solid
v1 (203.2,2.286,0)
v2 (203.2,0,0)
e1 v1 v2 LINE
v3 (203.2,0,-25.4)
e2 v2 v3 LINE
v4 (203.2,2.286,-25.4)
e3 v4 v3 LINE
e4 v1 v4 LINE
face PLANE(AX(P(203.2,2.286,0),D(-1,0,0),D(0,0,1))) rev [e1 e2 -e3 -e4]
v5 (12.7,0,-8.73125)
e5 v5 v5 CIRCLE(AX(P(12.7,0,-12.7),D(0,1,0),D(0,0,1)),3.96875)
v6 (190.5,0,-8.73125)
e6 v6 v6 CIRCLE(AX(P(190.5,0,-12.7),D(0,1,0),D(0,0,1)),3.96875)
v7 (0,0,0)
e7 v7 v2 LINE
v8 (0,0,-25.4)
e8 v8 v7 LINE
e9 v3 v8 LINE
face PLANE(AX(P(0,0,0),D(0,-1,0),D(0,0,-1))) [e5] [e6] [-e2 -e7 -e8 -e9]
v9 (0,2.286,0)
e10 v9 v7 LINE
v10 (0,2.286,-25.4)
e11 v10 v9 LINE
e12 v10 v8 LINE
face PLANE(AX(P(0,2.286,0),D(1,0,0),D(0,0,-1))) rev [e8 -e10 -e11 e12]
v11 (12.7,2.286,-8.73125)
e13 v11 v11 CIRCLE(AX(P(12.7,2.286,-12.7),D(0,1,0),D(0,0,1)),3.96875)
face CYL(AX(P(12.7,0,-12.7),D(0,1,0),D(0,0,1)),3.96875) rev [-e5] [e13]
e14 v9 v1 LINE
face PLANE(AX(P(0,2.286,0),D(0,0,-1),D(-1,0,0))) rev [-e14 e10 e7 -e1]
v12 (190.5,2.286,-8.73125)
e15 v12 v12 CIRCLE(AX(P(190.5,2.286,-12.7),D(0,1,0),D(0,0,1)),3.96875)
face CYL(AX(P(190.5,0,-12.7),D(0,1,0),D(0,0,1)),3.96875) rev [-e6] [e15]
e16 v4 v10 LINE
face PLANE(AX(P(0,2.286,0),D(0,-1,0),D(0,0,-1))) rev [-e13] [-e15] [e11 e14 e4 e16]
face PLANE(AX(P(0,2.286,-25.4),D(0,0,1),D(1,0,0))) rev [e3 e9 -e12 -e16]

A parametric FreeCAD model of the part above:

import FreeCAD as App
import Part
import Sketcher
from FreeCAD import Vector
Q = App.Units.Quantity

doc = App.newDocument("Part")
body = doc.addObject("PartDesign::Body", "Body")

# Sketch on XZ plane
sketch1 = doc.addObject("Sketcher::SketchObject", "Sketch")
body.addObject(sketch1)
sketch1.AttachmentSupport = (doc.XZ_Plane, [""])
sketch1.MapMode = "FlatFace"
sketch1.addGeometry(Part.LineSegment(Vector(0, -25, 0), Vector(0, 0, 0)), False)
sketch1.addGeometry(Part.LineSegment(Vector(0, 0, 0), Vector(203, 0, 0)), False)
sketch1.addGeometry(Part.LineSegment(Vector(203, 0, 0), Vector(203, -25, 0)), False)
sketch1.addGeometry(Part.LineSegment(Vector(203, -25, 0), Vector(0, -25, 0)), False)
sketch1.addConstraint(Sketcher.Constraint("Coincident", 0, 2, 1, 1))
sketch1.addConstraint(Sketcher.Constraint("Coincident", 1, 2, 2, 1))
sketch1.addConstraint(Sketcher.Constraint("Coincident", 2, 2, 3, 1))
sketch1.addConstraint(Sketcher.Constraint("Coincident", 3, 2, 0, 1))
sketch1.addConstraint(Sketcher.Constraint("Vertical", 0))
sketch1.addConstraint(Sketcher.Constraint("Horizontal", 1))
sketch1.addConstraint(Sketcher.Constraint("Vertical", 2))
sketch1.addConstraint(Sketcher.Constraint("Horizontal", 3))
sketch1.addConstraint(Sketcher.Constraint("Coincident", 0, 2, -1, 1))
sketch1.addConstraint(Sketcher.Constraint("DistanceX", 1, 1, 1, 2, Q("8 in")))
sketch1.addConstraint(Sketcher.Constraint("DistanceY", 0, 1, 0, 2, Q("1 in")))
pad1 = doc.addObject("PartDesign::Pad", "Pad")
body.addObject(pad1)
pad1.Profile = sketch1
pad1.Length = Q("0.09 in")
pad1.Reversed = True

# Sketch on XZ plane
sketch2 = doc.addObject("Sketcher::SketchObject", "Sketch001")
body.addObject(sketch2)
sketch2.AttachmentSupport = (doc.XZ_Plane, [""])
sketch2.MapMode = "FlatFace"
sketch2.AttachmentOffset = App.Placement(Vector(0, 0, -0.09 * 25.4), App.Rotation())
sketch2.addGeometry(Part.Circle(Vector(12.7, -12.7, 0), Vector(0, 0, 1), 4), False)
sketch2.addGeometry(Part.Circle(Vector(190.5, -12.7, 0), Vector(0, 0, 1), 4), False)
sketch2.addConstraint(Sketcher.Constraint("Equal", 0, 1))
sketch2.addConstraint(Sketcher.Constraint("Horizontal", 0, 3, 1, 3))
sketch2.addConstraint(Sketcher.Constraint("Diameter", 0, Q("0.3125 in")))
sketch2.addConstraint(Sketcher.Constraint("DistanceX", 0, 3, 1, 3, Q("7 in")))
sketch2.addConstraint(Sketcher.Constraint("DistanceX", -1, 1, 0, 3, Q("0.5 in")))
sketch2.addConstraint(Sketcher.Constraint("DistanceY", 0, 3, -1, 1, Q("0.5 in")))
pocket1 = doc.addObject("PartDesign::Pocket", "Pocket")
body.addObject(pocket1)
pocket1.Profile = sketch2
pocket1.Type = "ThroughAll"
pocket1.Reversed = True

doc.recompute()
